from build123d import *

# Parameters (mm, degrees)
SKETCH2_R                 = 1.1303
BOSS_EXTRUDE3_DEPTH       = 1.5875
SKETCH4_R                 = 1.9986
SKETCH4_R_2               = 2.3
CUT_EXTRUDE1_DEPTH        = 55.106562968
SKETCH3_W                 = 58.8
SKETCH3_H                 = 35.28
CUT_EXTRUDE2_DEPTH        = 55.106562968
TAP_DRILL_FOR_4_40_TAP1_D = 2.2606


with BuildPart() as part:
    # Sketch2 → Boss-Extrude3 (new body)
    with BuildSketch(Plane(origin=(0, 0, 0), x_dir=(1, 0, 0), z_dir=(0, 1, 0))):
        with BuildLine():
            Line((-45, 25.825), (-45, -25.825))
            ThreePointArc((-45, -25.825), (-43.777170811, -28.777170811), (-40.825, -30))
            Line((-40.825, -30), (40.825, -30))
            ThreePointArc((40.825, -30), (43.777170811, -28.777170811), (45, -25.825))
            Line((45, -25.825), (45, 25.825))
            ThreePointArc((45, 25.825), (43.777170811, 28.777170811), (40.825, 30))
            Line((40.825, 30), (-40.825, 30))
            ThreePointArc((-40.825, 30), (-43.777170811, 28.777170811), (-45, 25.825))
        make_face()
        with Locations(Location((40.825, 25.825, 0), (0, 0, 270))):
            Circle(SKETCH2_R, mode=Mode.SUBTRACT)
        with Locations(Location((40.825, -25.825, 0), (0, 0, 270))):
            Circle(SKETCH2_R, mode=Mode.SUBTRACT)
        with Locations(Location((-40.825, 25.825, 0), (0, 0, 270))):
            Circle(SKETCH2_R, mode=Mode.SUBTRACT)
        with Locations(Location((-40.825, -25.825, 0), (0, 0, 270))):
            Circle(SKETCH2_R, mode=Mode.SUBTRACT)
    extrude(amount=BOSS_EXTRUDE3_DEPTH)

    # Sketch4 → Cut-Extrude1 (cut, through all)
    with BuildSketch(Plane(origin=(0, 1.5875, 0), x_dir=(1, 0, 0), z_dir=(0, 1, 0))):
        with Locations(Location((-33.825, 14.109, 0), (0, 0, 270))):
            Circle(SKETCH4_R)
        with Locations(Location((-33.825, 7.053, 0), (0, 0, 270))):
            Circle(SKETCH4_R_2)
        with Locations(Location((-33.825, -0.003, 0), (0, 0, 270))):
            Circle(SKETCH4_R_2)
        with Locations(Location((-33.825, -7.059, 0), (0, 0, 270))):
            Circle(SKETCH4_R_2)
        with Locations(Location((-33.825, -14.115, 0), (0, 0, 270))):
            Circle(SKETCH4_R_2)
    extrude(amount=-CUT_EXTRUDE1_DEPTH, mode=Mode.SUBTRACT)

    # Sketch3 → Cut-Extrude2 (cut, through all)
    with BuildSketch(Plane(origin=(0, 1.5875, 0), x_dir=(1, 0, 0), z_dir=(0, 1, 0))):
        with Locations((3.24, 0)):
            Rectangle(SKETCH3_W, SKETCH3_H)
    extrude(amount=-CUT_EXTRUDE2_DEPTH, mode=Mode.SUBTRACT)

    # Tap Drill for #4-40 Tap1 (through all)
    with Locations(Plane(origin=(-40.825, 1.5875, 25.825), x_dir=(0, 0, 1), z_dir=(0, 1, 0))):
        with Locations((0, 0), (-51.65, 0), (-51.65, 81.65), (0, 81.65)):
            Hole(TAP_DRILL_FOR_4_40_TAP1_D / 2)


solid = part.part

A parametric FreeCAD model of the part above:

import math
import FreeCAD as App
import Part
import Sketcher

doc = App.newDocument("Part")
body = doc.addObject("PartDesign::Body", "Body")

# Sketch on XZ plane
sketch1 = body.newObject("Sketcher::SketchObject", "Sketch")
sketch1.AttachmentSupport = (doc.getObject("XZ_Plane"), [""])
sketch1.MapMode = "FlatFace"
sketch1.addGeometry(Part.LineSegment(App.Vector(-45, -25.8, 0), App.Vector(-45, 25.8, 0)), False)
sketch1.addGeometry(Part.ArcOfCircle(Part.Circle(App.Vector(-40.8, 25.8, 0), App.Vector(0, 0, 1), 4.2), math.radians(90), math.radians(180)), False)
sketch1.addGeometry(Part.LineSegment(App.Vector(-40.8, 30, 0), App.Vector(40.8, 30, 0)), False)
sketch1.addGeometry(Part.ArcOfCircle(Part.Circle(App.Vector(40.8, 25.8, 0), App.Vector(0, 0, 1), 4.2), math.radians(0), math.radians(90)), False)
sketch1.addGeometry(Part.LineSegment(App.Vector(45, 25.8, 0), App.Vector(45, -25.8, 0)), False)
sketch1.addGeometry(Part.ArcOfCircle(Part.Circle(App.Vector(40.8, -25.8, 0), App.Vector(0, 0, 1), 4.2), math.radians(-90), math.radians(0)), False)
sketch1.addGeometry(Part.LineSegment(App.Vector(40.8, -30, 0), App.Vector(-40.8, -30, 0)), False)
sketch1.addGeometry(Part.ArcOfCircle(Part.Circle(App.Vector(-40.8, -25.8, 0), App.Vector(0, 0, 1), 4.2), math.radians(-180), math.radians(-90)), False)
sketch1.addGeometry(Part.Circle(App.Vector(-40.8, 25.8, 0), App.Vector(0, 0, 1), 1.1), False)
sketch1.addGeometry(Part.Circle(App.Vector(40.8, 25.8, 0), App.Vector(0, 0, 1), 1.1), False)
sketch1.addGeometry(Part.Circle(App.Vector(-40.8, -25.8, 0), App.Vector(0, 0, 1), 1.1), False)
sketch1.addGeometry(Part.Circle(App.Vector(40.8, -25.8, 0), App.Vector(0, 0, 1), 1.1), False)
sketch1.addConstraint(Sketcher.Constraint("Tangent", 0, 2, 1, 2))
sketch1.addConstraint(Sketcher.Constraint("Tangent", 1, 1, 2, 1))
sketch1.addConstraint(Sketcher.Constraint("Tangent", 2, 2, 3, 2))
sketch1.addConstraint(Sketcher.Constraint("Tangent", 3, 1, 4, 1))
sketch1.addConstraint(Sketcher.Constraint("Tangent", 4, 2, 5, 2))
sketch1.addConstraint(Sketcher.Constraint("Tangent", 5, 1, 6, 1))
sketch1.addConstraint(Sketcher.Constraint("Tangent", 6, 2, 7, 2))
sketch1.addConstraint(Sketcher.Constraint("Tangent", 7, 1, 0, 1))
sketch1.addConstraint(Sketcher.Constraint("Vertical", 0))
sketch1.addConstraint(Sketcher.Constraint("Horizontal", 2))
sketch1.addConstraint(Sketcher.Constraint("Vertical", 4))
sketch1.addConstraint(Sketcher.Constraint("Horizontal", 6))
sketch1.addConstraint(Sketcher.Constraint("Coincident", 8, 3, 1, 3))
sketch1.addConstraint(Sketcher.Constraint("Coincident", 9, 3, 3, 3))
sketch1.addConstraint(Sketcher.Constraint("Coincident", 10, 3, 7, 3))
sketch1.addConstraint(Sketcher.Constraint("Coincident", 11, 3, 5, 3))
sketch1.addConstraint(Sketcher.Constraint("Equal", 1, 3))
sketch1.addConstraint(Sketcher.Constraint("Equal", 3, 5))
sketch1.addConstraint(Sketcher.Constraint("Equal", 5, 7))
sketch1.addConstraint(Sketcher.Constraint("Equal", 8, 9))
sketch1.addConstraint(Sketcher.Constraint("Equal", 9, 10))
sketch1.addConstraint(Sketcher.Constraint("Equal", 10, 11))
sketch1.addConstraint(Sketcher.Constraint("Symmetric", 1, 3, 5, 3, -1, 1))
sketch1.addConstraint(Sketcher.Constraint("DistanceX", 0, 2, -1, 1, 45.0))
sketch1.addConstraint(Sketcher.Constraint("DistanceY", -1, 1, 1, 1, 30.0))
sketch1.addConstraint(Sketcher.Constraint("Radius", 1, 4.175))
sketch1.addConstraint(Sketcher.Constraint("Diameter", 8, 2.2606))
pad1 = body.newObject("PartDesign::Pad", "Pad")
pad1.Profile = sketch1
pad1.Length = 1.5875
pad1.Reversed = True

# Sketch on XZ plane
sketch2 = body.newObject("Sketcher::SketchObject", "Sketch001")
sketch2.AttachmentSupport = (doc.getObject("XZ_Plane"), [""])
sketch2.MapMode = "FlatFace"
sketch2.AttachmentOffset = App.Placement(App.Vector(0, 0, -1.5875), App.Rotation())
sketch2.addGeometry(Part.Circle(App.Vector(-33.8, -14.1, 0), App.Vector(0, 0, 1), 2), False)
sketch2.addGeometry(Part.Circle(App.Vector(-33.8, -7.1, 0), App.Vector(0, 0, 1), 2.3), False)
sketch2.addGeometry(Part.Circle(App.Vector(-33.8, 0, 0), App.Vector(0, 0, 1), 2.3), False)
sketch2.addGeometry(Part.Circle(App.Vector(-33.8, 7.1, 0), App.Vector(0, 0, 1), 2.3), False)
sketch2.addGeometry(Part.Circle(App.Vector(-33.8, 14.1, 0), App.Vector(0, 0, 1), 2.3), False)
sketch2.addConstraint(Sketcher.Constraint("Equal", 1, 2))
sketch2.addConstraint(Sketcher.Constraint("Equal", 2, 3))
sketch2.addConstraint(Sketcher.Constraint("Equal", 3, 4))
sketch2.addConstraint(Sketcher.Constraint("Vertical", 0, 3, 1, 3))
sketch2.addConstraint(Sketcher.Constraint("Vertical", 1, 3, 2, 3))
sketch2.addConstraint(Sketcher.Constraint("Vertical", 2, 3, 3, 3))
sketch2.addConstraint(Sketcher.Constraint("Vertical", 3, 3, 4, 3))
sketch2.addConstraint(Sketcher.Constraint("Diameter", 1, 4.6))
sketch2.addConstraint(Sketcher.Constraint("Diameter", 0, 3.9972))
sketch2.addConstraint(Sketcher.Constraint("DistanceX", 0, 3, -1, 1, 33.825))
sketch2.addConstraint(Sketcher.Constraint("DistanceY", 0, 3, -1, 1, 14.109))
sketch2.addConstraint(Sketcher.Constraint("DistanceY", 1, 3, -1, 1, 7.053))
sketch2.addConstraint(Sketcher.Constraint("DistanceY", -1, 1, 2, 3, 0.003))
sketch2.addConstraint(Sketcher.Constraint("DistanceY", -1, 1, 3, 3, 7.059))
sketch2.addConstraint(Sketcher.Constraint("DistanceY", -1, 1, 4, 3, 14.115))
pocket1 = body.newObject("PartDesign::Pocket", "Pocket")
pocket1.Profile = sketch2
pocket1.Type = "ThroughAll"
pocket1.Reversed = True

# Sketch on XZ plane
sketch3 = body.newObject("Sketcher::SketchObject", "Sketch002")
sketch3.AttachmentSupport = (doc.getObject("XZ_Plane"), [""])
sketch3.MapMode = "FlatFace"
sketch3.AttachmentOffset = App.Placement(App.Vector(0, 0, -1.5875), App.Rotation())
sketch3.addGeometry(Part.LineSegment(App.Vector(-26, -18, 0), App.Vector(-26, 18, 0)), False)
sketch3.addGeometry(Part.LineSegment(App.Vector(-26, 18, 0), App.Vector(33, 18, 0)), False)
sketch3.addGeometry(Part.LineSegment(App.Vector(33, 18, 0), App.Vector(33, -18, 0)), False)
sketch3.addGeometry(Part.LineSegment(App.Vector(33, -18, 0), App.Vector(-26, -18, 0)), False)
sketch3.addConstraint(Sketcher.Constraint("Coincident", 0, 2, 1, 1))
sketch3.addConstraint(Sketcher.Constraint("Coincident", 1, 2, 2, 1))
sketch3.addConstraint(Sketcher.Constraint("Coincident", 2, 2, 3, 1))
sketch3.addConstraint(Sketcher.Constraint("Coincident", 3, 2, 0, 1))
sketch3.addConstraint(Sketcher.Constraint("Vertical", 0))
sketch3.addConstraint(Sketcher.Constraint("Horizontal", 1))
sketch3.addConstraint(Sketcher.Constraint("Vertical", 2))
sketch3.addConstraint(Sketcher.Constraint("Horizontal", 3))
sketch3.addConstraint(Sketcher.Constraint("DistanceX", 1, 1, 1, 2, 58.8))
sketch3.addConstraint(Sketcher.Constraint("DistanceY", 0, 1, 0, 2, 35.28))
sketch3.addConstraint(Sketcher.Constraint("DistanceX", 0, 2, -1, 1, 26.16))
sketch3.addConstraint(Sketcher.Constraint("DistanceY", -1, 1, 0, 2, 17.64))
pocket2 = body.newObject("PartDesign::Pocket", "Pocket001")
pocket2.Profile = sketch3
pocket2.Type = "ThroughAll"
pocket2.Reversed = True

# Sketch on XZ plane
sketch4 = body.newObject("Sketcher::SketchObject", "Sketch003")
sketch4.AttachmentSupport = (doc.getObject("XZ_Plane"), [""])
sketch4.MapMode = "FlatFace"
sketch4.AttachmentOffset = App.Placement(App.Vector(0, 0, -1.5875), App.Rotation())
sketch4.addGeometry(Part.Circle(App.Vector(-40.8, 25.8, 0), App.Vector(0, 0, 1), 1.1), False)
sketch4.addGeometry(Part.Circle(App.Vector(-40.8, -25.8, 0), App.Vector(0, 0, 1), 1.1), False)
sketch4.addGeometry(Part.Circle(App.Vector(40.8, -25.8, 0), App.Vector(0, 0, 1), 1.1), False)
sketch4.addGeometry(Part.Circle(App.Vector(40.8, 25.8, 0), App.Vector(0, 0, 1), 1.1), False)
sketch4.addConstraint(Sketcher.Constraint("Equal", 0, 1))
sketch4.addConstraint(Sketcher.Constraint("Equal", 1, 2))
sketch4.addConstraint(Sketcher.Constraint("Equal", 2, 3))
sketch4.addConstraint(Sketcher.Constraint("Symmetric", 0, 3, 2, 3, -1, 1))
sketch4.addConstraint(Sketcher.Constraint("Symmetric", 1, 3, 3, 3, -1, 1))
sketch4.addConstraint(Sketcher.Constraint("Symmetric", 1, 3, 2, 3, -2))
sketch4.addConstraint(Sketcher.Constraint("Diameter", 0, 2.2606))
sketch4.addConstraint(Sketcher.Constraint("DistanceY", 1, 3, 0, 3, 51.65))
sketch4.addConstraint(Sketcher.Constraint("DistanceX", 1, 3, 2, 3, 81.65))
doc.recompute()
hole = body.newObject("PartDesign::Hole", "Hole")
hole.Profile = sketch4
hole.ThreadType = "None"
hole.Diameter = 2.2606
hole.DepthType = "ThroughAll"
hole.Reversed = True

doc.recompute()
